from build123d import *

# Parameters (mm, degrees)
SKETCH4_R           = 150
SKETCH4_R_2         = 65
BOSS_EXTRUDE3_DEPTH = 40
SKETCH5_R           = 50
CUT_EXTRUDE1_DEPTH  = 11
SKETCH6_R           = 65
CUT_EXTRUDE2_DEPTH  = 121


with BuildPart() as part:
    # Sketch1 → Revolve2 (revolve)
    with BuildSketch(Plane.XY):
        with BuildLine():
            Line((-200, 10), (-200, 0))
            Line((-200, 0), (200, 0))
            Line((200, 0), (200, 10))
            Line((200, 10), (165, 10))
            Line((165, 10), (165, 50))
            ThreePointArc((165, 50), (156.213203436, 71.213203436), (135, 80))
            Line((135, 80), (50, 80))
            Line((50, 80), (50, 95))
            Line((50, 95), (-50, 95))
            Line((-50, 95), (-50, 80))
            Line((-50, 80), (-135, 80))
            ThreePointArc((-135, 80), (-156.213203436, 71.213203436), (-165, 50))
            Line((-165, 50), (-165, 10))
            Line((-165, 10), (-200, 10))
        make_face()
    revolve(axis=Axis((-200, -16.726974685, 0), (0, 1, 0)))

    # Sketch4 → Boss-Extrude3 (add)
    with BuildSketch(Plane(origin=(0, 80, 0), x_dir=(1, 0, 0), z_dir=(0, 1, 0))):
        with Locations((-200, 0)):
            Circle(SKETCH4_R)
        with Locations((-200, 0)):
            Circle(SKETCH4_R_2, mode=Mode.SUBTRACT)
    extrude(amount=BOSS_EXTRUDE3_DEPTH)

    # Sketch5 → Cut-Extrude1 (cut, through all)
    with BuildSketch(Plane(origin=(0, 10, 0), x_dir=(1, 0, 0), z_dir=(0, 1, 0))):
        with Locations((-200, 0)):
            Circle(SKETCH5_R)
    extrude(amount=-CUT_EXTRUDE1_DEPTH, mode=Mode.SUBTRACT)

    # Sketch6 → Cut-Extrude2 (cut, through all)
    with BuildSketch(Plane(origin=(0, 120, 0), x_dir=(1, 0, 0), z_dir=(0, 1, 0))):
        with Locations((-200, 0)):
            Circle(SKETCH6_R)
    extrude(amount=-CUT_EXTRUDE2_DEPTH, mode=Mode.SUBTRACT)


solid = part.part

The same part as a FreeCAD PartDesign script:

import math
import FreeCAD as App
import Part
import Sketcher
from FreeCAD import Vector
Q = App.Units.Quantity

doc = App.newDocument("Part")
body = doc.addObject("PartDesign::Body", "Body")

# Sketch on XY plane
sketch1 = body.newObject("Sketcher::SketchObject", "Sketch")
sketch1.AttachmentSupport = (doc.getObject("XY_Plane"), [""])
sketch1.MapMode = "FlatFace"
sketch1.addGeometry([
    Part.LineSegment(Vector(-200, 10, 0), Vector(-200, 0, 0)),  # 0
    Part.LineSegment(Vector(-200, 0, 0), Vector(200, 0, 0)),  # 1
    Part.LineSegment(Vector(200, 0, 0), Vector(200, 10, 0)),  # 2
    Part.LineSegment(Vector(200, 10, 0), Vector(165, 10, 0)),  # 3
    Part.LineSegment(Vector(165, 10, 0), Vector(165, 50, 0)),  # 4
    Part.ArcOfCircle(Part.Circle(Vector(135, 50, 0), Vector(0, 0, 1), 30), math.radians(0), math.radians(90)),  # 5
    Part.LineSegment(Vector(135, 80, 0), Vector(50, 80, 0)),  # 6
    Part.LineSegment(Vector(50, 80, 0), Vector(50, 95, 0)),  # 7
    Part.LineSegment(Vector(50, 95, 0), Vector(-50, 95, 0)),  # 8
    Part.LineSegment(Vector(-50, 95, 0), Vector(-50, 80, 0)),  # 9
    Part.LineSegment(Vector(-50, 80, 0), Vector(-135, 80, 0)),  # 10
    Part.ArcOfCircle(Part.Circle(Vector(-135, 50, 0), Vector(0, 0, 1), 30), math.radians(90), math.radians(180)),  # 11
    Part.LineSegment(Vector(-165, 50, 0), Vector(-165, 10, 0)),  # 12
    Part.LineSegment(Vector(-165, 10, 0), Vector(-200, 10, 0)),  # 13
], False)
sketch1.addGeometry(Part.LineSegment(Vector(-200, 0, 0), Vector(-200, 95, 0)), True)  # axis
sketch1.addConstraint([
    Sketcher.Constraint("Coincident", 0, 2, 1, 1),
    Sketcher.Constraint("Coincident", 1, 2, 2, 1),
    Sketcher.Constraint("Coincident", 2, 2, 3, 1),
    Sketcher.Constraint("Coincident", 3, 2, 4, 1),
    Sketcher.Constraint("Tangent", 4, 2, 5, 1),
    Sketcher.Constraint("Tangent", 5, 2, 6, 1),
    Sketcher.Constraint("Coincident", 6, 2, 7, 1),
    Sketcher.Constraint("Coincident", 7, 2, 8, 1),
    Sketcher.Constraint("Coincident", 8, 2, 9, 1),
    Sketcher.Constraint("Coincident", 9, 2, 10, 1),
    Sketcher.Constraint("Tangent", 10, 2, 11, 1),
    Sketcher.Constraint("Tangent", 11, 2, 12, 1),
    Sketcher.Constraint("Coincident", 12, 2, 13, 1),
    Sketcher.Constraint("Coincident", 13, 2, 0, 1),
    Sketcher.Constraint("Vertical", 0),
    Sketcher.Constraint("Horizontal", 1),
    Sketcher.Constraint("Vertical", 2),
    Sketcher.Constraint("Horizontal", 3),
    Sketcher.Constraint("Vertical", 4),
    Sketcher.Constraint("Horizontal", 6),
    Sketcher.Constraint("Vertical", 7),
    Sketcher.Constraint("Horizontal", 8),
    Sketcher.Constraint("Vertical", 9),
    Sketcher.Constraint("Horizontal", 10),
    Sketcher.Constraint("Vertical", 12),
    Sketcher.Constraint("Horizontal", 13),
    Sketcher.Constraint("Vertical", 14),
    Sketcher.Constraint("Coincident", 14, 1, 0, 2),
    Sketcher.Constraint("Equal", 5, 11),
    Sketcher.Constraint("Symmetric", 0, 2, 1, 2, -1, 1),
    Sketcher.Constraint("Symmetric", 5, 3, 11, 3, -2),
    Sketcher.Constraint("Horizontal", 3, 2, 12, 2),
    Sketcher.Constraint("Horizontal", 8, 2, 14, 2),
    Sketcher.Constraint("Equal", 6, 10),
    Sketcher.Constraint("Radius", 5, Q("30 mm")),
    Sketcher.Constraint("DistanceX", 1, 1, 1, 2, Q("400 mm")),
    Sketcher.Constraint("DistanceX", 3, 2, 3, 1, Q("35 mm")),
    Sketcher.Constraint("DistanceX", 6, 2, 6, 1, Q("85 mm")),
    Sketcher.Constraint("DistanceY", 0, 2, 0, 1, Q("10 mm")),
    Sketcher.Constraint("DistanceY", 4, 1, 4, 2, Q("40 mm")),
    Sketcher.Constraint("DistanceY", 7, 1, 7, 2, Q("15 mm")),
])
revolution = body.newObject("PartDesign::Revolution", "Revolution")
revolution.Profile = sketch1
revolution.ReferenceAxis = (sketch1, ["Axis0"])
revolution.Angle = 360

# Sketch on XZ plane
sketch2 = body.newObject("Sketcher::SketchObject", "Sketch001")
sketch2.AttachmentSupport = (doc.getObject("XZ_Plane"), [""])
sketch2.MapMode = "FlatFace"
sketch2.AttachmentOffset = App.Placement(Vector(0, 0, -80), App.Rotation())
sketch2.addGeometry([
    Part.Circle(Vector(-200, 0, 0), Vector(0, 0, 1), 150),
    Part.Circle(Vector(-200, 0, 0), Vector(0, 0, 1), 65),
], False)
sketch2.addConstraint([
    Sketcher.Constraint("Coincident", 1, 3, 0, 3),
    Sketcher.Constraint("PointOnObject", 0, 3, -1),
    Sketcher.Constraint("Diameter", 0, Q("300 mm")),
    Sketcher.Constraint("Diameter", 1, Q("130 mm")),
    Sketcher.Constraint("DistanceX", 0, 3, -1, 1, Q("200 mm")),
])
pad1 = body.newObject("PartDesign::Pad", "Pad")
pad1.Profile = sketch2
pad1.Length = 40
pad1.Reversed = True

# Sketch on XZ plane
sketch3 = body.newObject("Sketcher::SketchObject", "Sketch002")
sketch3.AttachmentSupport = (doc.getObject("XZ_Plane"), [""])
sketch3.MapMode = "FlatFace"
sketch3.AttachmentOffset = App.Placement(Vector(0, 0, -10), App.Rotation())
sketch3.addGeometry(Part.Circle(Vector(-200, 0, 0), Vector(0, 0, 1), 50), False)
sketch3.addConstraint([
    Sketcher.Constraint("PointOnObject", 0, 3, -1),
    Sketcher.Constraint("Diameter", 0, Q("100 mm")),
    Sketcher.Constraint("DistanceX", 0, 3, -1, 1, Q("200 mm")),
])
pocket1 = body.newObject("PartDesign::Pocket", "Pocket")
pocket1.Profile = sketch3
pocket1.Type = "ThroughAll"
pocket1.Reversed = True

# Sketch on XZ plane
sketch4 = body.newObject("Sketcher::SketchObject", "Sketch003")
sketch4.AttachmentSupport = (doc.getObject("XZ_Plane"), [""])
sketch4.MapMode = "FlatFace"
sketch4.AttachmentOffset = App.Placement(Vector(0, 0, -120), App.Rotation())
sketch4.addGeometry(Part.Circle(Vector(-200, 0, 0), Vector(0, 0, 1), 65), False)
sketch4.addConstraint([
    Sketcher.Constraint("PointOnObject", 0, 3, -1),
    Sketcher.Constraint("Diameter", 0, Q("130 mm")),
    Sketcher.Constraint("DistanceX", 0, 3, -1, 1, Q("200 mm")),
])
pocket2 = body.newObject("PartDesign::Pocket", "Pocket001")
pocket2.Profile = sketch4
pocket2.Type = "ThroughAll"
pocket2.Reversed = True

doc.recompute()
